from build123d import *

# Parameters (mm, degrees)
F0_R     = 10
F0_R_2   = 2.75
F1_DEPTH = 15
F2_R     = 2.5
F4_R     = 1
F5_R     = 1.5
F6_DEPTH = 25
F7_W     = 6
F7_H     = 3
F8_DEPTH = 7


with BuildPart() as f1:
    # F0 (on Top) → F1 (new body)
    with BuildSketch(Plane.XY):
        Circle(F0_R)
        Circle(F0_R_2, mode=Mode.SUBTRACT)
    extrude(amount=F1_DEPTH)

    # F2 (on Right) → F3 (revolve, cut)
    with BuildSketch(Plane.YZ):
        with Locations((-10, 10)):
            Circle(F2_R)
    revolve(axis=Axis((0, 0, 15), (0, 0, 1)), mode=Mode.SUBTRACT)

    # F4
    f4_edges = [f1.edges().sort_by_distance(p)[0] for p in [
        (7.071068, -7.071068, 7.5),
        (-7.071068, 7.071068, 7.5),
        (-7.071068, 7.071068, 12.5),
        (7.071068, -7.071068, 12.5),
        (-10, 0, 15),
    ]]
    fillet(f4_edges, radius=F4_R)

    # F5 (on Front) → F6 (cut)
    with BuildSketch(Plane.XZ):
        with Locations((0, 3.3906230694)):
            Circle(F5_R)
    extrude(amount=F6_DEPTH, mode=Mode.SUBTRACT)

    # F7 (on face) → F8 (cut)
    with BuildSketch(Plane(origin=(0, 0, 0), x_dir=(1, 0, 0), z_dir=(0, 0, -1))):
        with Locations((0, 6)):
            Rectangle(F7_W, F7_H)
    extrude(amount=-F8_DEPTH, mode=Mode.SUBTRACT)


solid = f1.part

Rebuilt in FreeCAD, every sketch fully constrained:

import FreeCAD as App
import Part
import Sketcher


def edges_at(feature, points):
    """Names of the edges that pass closest to the given points."""
    edges = feature.Shape.Edges
    near = lambda p: min(range(len(edges)), key=lambda i: edges[i].distToShape(Part.Vertex(*p))[0])
    return sorted({f"Edge{near(p) + 1}" for p in points})


def add_polygon(sketch, points):
    """Adds a closed chain of lines whose ends are joined by coincident constraints."""
    first, n = sketch.GeometryCount, len(points)
    for a, b in zip(points, points[1:] + points[:1]):
        sketch.addGeometry(Part.LineSegment(App.Vector(*a, 0), App.Vector(*b, 0)), False)
    for i in range(n):
        sketch.addConstraint(Sketcher.Constraint("Coincident", first + i, 2, first + (i + 1) % n, 1))

doc = App.newDocument("Part")
body = doc.addObject("PartDesign::Body", "Body")

# Sketch on XY plane
sketch1 = body.newObject("Sketcher::SketchObject", "Sketch")
sketch1.AttachmentSupport = (doc.getObject("XY_Plane"), [""])
sketch1.MapMode = "FlatFace"
sketch1.addGeometry([
    Part.Circle(App.Vector(0, 0, 0), App.Vector(0, 0, 1), 10),
    Part.Circle(App.Vector(0, 0, 0), App.Vector(0, 0, 1), 2.8),
], False)
sketch1.addConstraint([
    Sketcher.Constraint("Coincident", 0, 3, -1, 1),
    Sketcher.Constraint("Coincident", 1, 3, -1, 1),
    Sketcher.Constraint("Diameter", 0, 20.0),
    Sketcher.Constraint("Diameter", 1, 5.5),
])
pad1 = body.newObject("PartDesign::Pad", "Pad")
pad1.Profile = sketch1
pad1.Length = 15

# Sketch on YZ plane
sketch2 = body.newObject("Sketcher::SketchObject", "Sketch001")
sketch2.AttachmentSupport = (doc.getObject("YZ_Plane"), [""])
sketch2.MapMode = "FlatFace"
sketch2.addGeometry(Part.Circle(App.Vector(-10, 10, 0), App.Vector(0, 0, 1), 2.5), False)
sketch2.addConstraint([
    Sketcher.Constraint("Diameter", 0, 5.0),
    Sketcher.Constraint("DistanceX", 0, 3, -1, 1, 10.0),
    Sketcher.Constraint("DistanceY", -1, 1, 0, 3, 10.0),
])
groove = body.newObject("PartDesign::Groove", "Groove")
groove.Profile = sketch2
groove.ReferenceAxis = (sketch2, ["V_Axis"])
groove.Angle = 360
doc.recompute()

fillet = body.newObject("PartDesign::Fillet", "Fillet")
fillet.Base = (groove, edges_at(groove, [
    (7.071, -7.071, 7.5),
    (-7.071, 7.071, 7.5),
    (-7.071, 7.071, 12.5),
    (7.071, -7.071, 12.5),
    (-10, 0, 15),
]))
fillet.Radius = 1

# Sketch on XZ plane
sketch3 = body.newObject("Sketcher::SketchObject", "Sketch002")
sketch3.AttachmentSupport = (doc.getObject("XZ_Plane"), [""])
sketch3.MapMode = "FlatFace"
sketch3.addGeometry(Part.Circle(App.Vector(0, 3.4, 0), App.Vector(0, 0, 1), 1.5), False)
sketch3.addConstraint([
    Sketcher.Constraint("PointOnObject", 0, 3, -2),
    Sketcher.Constraint("Diameter", 0, 3.0),
    Sketcher.Constraint("DistanceY", -1, 1, 0, 3, 3.390623),
])
pocket1 = body.newObject("PartDesign::Pocket", "Pocket")
pocket1.Profile = sketch3
pocket1.Length = 25
pocket1.Reversed = True

# Sketch on XY plane
sketch4 = body.newObject("Sketcher::SketchObject", "Sketch003")
sketch4.AttachmentSupport = (doc.getObject("XY_Plane"), [""])
sketch4.MapMode = "FlatFace"
add_polygon(sketch4, [(-3, -7.5), (-3, -4.5), (3, -4.5), (3, -7.5)])  # lines 0-3
sketch4.addConstraint([
    Sketcher.Constraint("Vertical", 0),
    Sketcher.Constraint("Horizontal", 1),
    Sketcher.Constraint("Vertical", 2),
    Sketcher.Constraint("Horizontal", 3),
    Sketcher.Constraint("DistanceX", 1, 1, 1, 2, 6.0),
    Sketcher.Constraint("DistanceY", 0, 1, 0, 2, 3.0),
    Sketcher.Constraint("DistanceX", 0, 2, -1, 1, 3.0),
    Sketcher.Constraint("DistanceY", 0, 2, -1, 1, 4.5),
])
pocket2 = body.newObject("PartDesign::Pocket", "Pocket001")
pocket2.Profile = sketch4
pocket2.Length = 7
pocket2.Reversed = True

doc.recompute()
